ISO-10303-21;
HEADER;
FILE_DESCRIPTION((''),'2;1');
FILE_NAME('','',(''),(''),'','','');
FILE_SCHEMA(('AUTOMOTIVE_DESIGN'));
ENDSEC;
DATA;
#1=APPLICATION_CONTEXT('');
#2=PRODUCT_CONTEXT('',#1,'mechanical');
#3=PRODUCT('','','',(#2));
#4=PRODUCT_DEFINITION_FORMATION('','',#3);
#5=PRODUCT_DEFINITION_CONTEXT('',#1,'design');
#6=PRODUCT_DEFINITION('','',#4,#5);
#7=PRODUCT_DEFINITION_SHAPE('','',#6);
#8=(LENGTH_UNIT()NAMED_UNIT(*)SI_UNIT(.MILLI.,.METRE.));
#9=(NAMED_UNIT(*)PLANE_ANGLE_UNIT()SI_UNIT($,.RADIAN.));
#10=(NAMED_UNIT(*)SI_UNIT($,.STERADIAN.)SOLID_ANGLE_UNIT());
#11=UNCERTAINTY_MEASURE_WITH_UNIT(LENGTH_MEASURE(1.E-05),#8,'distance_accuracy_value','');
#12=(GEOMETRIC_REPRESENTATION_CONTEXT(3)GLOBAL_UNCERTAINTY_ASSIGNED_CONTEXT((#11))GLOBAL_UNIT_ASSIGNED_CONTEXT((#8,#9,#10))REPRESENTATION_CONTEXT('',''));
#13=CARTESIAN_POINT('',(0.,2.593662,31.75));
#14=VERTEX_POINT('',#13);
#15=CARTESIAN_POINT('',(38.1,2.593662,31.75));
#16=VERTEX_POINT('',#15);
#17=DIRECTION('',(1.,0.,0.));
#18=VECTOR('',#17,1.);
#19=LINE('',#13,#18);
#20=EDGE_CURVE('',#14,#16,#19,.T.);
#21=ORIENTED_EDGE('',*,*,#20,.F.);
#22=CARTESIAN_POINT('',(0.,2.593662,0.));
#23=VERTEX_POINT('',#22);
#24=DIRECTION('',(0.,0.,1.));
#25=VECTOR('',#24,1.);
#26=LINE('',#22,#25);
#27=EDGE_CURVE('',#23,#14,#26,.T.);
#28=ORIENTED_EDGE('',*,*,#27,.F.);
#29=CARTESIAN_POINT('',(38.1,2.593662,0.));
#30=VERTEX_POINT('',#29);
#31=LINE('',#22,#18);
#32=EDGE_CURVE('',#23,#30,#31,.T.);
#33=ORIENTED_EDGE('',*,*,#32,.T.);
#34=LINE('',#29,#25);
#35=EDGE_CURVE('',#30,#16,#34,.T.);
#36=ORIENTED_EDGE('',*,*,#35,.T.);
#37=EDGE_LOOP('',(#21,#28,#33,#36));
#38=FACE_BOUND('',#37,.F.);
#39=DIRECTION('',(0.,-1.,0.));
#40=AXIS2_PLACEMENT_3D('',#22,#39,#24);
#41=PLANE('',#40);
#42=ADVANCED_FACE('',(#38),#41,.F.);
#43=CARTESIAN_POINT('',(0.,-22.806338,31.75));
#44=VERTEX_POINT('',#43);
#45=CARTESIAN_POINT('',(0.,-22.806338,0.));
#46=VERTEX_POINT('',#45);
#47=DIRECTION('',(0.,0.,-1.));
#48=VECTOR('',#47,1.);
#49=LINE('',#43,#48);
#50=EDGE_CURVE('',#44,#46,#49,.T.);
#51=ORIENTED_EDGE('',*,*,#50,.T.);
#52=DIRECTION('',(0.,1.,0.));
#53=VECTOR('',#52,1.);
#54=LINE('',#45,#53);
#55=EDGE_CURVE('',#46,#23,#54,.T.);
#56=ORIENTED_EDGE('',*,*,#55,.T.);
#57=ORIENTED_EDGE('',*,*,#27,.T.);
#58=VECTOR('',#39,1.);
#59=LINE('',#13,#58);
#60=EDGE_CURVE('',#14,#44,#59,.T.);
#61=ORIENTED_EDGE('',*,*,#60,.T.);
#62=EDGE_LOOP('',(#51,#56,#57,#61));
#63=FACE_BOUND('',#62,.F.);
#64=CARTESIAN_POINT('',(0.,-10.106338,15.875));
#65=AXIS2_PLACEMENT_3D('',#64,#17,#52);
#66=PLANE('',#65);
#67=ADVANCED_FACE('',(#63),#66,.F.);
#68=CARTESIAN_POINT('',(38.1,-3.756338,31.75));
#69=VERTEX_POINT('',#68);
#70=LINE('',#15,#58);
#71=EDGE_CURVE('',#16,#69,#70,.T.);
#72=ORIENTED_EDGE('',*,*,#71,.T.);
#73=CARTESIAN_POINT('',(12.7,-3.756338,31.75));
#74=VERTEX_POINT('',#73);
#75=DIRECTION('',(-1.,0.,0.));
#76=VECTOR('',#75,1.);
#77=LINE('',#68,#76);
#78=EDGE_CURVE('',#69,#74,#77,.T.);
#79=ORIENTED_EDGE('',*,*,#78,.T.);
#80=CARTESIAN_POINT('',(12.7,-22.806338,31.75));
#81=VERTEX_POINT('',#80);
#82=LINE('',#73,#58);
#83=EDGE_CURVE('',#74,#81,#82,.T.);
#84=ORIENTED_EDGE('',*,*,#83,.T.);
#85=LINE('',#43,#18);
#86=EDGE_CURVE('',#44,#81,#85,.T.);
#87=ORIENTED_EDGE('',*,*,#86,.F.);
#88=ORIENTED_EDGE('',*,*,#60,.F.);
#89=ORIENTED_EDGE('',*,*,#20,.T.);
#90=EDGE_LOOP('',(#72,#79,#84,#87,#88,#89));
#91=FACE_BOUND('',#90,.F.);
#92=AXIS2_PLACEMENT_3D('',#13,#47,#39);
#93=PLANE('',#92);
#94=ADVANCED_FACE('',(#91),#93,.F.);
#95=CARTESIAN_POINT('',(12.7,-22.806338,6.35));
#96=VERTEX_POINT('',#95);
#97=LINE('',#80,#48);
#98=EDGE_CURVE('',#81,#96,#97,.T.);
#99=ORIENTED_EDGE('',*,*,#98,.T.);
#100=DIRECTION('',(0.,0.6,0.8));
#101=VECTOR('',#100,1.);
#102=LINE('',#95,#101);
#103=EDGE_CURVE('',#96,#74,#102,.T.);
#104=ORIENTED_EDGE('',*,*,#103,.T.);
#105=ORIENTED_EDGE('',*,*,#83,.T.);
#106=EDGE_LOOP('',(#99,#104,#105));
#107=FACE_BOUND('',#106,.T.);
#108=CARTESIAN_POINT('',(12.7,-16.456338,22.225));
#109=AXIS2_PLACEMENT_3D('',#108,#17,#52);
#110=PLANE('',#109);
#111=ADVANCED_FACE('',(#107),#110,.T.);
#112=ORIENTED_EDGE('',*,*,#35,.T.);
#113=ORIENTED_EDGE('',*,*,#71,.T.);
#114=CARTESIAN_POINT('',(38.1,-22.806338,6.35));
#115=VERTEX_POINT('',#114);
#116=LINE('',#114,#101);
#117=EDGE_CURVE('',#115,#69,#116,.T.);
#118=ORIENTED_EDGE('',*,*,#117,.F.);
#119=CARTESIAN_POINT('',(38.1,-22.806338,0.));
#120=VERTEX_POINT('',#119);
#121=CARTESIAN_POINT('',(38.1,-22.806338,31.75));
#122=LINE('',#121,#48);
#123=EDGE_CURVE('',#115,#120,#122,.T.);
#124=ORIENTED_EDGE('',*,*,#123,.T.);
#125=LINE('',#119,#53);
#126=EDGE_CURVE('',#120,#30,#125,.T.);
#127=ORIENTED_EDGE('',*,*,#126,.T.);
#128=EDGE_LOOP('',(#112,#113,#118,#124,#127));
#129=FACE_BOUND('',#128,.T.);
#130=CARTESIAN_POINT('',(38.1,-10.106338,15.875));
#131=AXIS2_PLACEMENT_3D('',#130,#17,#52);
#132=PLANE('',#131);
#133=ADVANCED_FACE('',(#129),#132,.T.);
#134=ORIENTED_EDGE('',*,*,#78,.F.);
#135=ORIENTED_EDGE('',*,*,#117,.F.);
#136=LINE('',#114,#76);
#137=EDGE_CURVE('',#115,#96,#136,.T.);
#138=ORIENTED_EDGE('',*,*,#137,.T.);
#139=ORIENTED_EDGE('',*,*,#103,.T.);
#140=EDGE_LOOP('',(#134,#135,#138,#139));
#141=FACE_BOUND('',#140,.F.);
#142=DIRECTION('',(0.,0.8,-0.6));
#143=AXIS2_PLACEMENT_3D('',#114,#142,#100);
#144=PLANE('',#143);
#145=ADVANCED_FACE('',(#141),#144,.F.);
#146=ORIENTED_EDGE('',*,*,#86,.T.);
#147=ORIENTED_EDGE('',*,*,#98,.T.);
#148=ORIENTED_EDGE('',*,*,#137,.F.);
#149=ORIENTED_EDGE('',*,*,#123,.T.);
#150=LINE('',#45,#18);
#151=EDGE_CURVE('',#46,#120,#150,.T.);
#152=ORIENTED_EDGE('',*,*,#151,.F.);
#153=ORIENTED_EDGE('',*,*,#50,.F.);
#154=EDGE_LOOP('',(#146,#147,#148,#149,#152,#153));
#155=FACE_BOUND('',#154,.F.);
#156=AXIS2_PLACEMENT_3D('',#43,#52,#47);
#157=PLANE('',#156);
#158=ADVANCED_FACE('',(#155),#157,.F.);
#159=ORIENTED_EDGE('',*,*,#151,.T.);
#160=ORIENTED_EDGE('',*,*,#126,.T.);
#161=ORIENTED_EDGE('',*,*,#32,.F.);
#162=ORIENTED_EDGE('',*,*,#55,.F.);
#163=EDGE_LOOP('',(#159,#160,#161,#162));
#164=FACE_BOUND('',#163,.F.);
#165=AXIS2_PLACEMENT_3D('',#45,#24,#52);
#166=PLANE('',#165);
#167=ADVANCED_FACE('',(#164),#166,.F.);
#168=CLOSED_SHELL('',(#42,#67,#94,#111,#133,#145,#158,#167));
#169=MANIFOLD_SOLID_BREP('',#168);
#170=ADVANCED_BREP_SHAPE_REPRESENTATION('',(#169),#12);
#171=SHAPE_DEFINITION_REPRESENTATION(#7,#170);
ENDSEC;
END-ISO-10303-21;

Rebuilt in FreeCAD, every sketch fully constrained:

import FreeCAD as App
import Part
import Sketcher
Q = App.Units.Quantity

doc = App.newDocument("Part")
body = doc.addObject("PartDesign::Body", "Body")

sketch1 = doc.addObject("Sketcher::SketchObject", "Sketch")
body.addObject(sketch1)
sketch1.AttachmentSupport = (doc.YZ_Plane, [""])
sketch1.MapMode = "FlatFace"
sketch1.addGeometry([
    Part.LineSegment(App.Vector(-23, 0, 0), App.Vector(3, 0, 0)),
    Part.LineSegment(App.Vector(3, 0, 0), App.Vector(3, 32, 0)),
    Part.LineSegment(App.Vector(3, 32, 0), App.Vector(-23, 32, 0)),
    Part.LineSegment(App.Vector(-23, 32, 0), App.Vector(-23, 0, 0)),
], False)
sketch1.addConstraint([
    Sketcher.Constraint("Coincident", 0, 2, 1, 1),
    Sketcher.Constraint("Coincident", 1, 2, 2, 1),
    Sketcher.Constraint("Coincident", 2, 2, 3, 1),
    Sketcher.Constraint("Coincident", 3, 2, 0, 1),
    Sketcher.Constraint("Horizontal", 0),
    Sketcher.Constraint("Vertical", 1),
    Sketcher.Constraint("Horizontal", 2),
    Sketcher.Constraint("Vertical", 3),
    Sketcher.Constraint("PointOnObject", 0, 2, -1),
    Sketcher.Constraint("DistanceX", 0, 1, 0, 2, Q("1 in")),
    Sketcher.Constraint("DistanceY", 1, 1, 1, 2, Q("1.25 in")),
    Sketcher.Constraint("DistanceX", 2, 2, -1, 1, 22.806338),
])
pad1 = doc.addObject("PartDesign::Pad", "Pad")
body.addObject(pad1)
pad1.Profile = sketch1
pad1.Length = Q("1.5 in")

sketch2 = doc.addObject("Sketcher::SketchObject", "Sketch001")
body.addObject(sketch2)
sketch2.AttachmentSupport = (doc.YZ_Plane, [""])
sketch2.MapMode = "FlatFace"
sketch2.AttachmentOffset = App.Placement(App.Vector(0, 0, 1.5 * 25.4), App.Rotation())
sketch2.addGeometry([
    Part.LineSegment(App.Vector(-4, 32, 0), App.Vector(-23, 32, 0)),
    Part.LineSegment(App.Vector(-23, 32, 0), App.Vector(-23, 6, 0)),
    Part.LineSegment(App.Vector(-23, 6, 0), App.Vector(-4, 32, 0)),
], False)
sketch2.addConstraint([
    Sketcher.Constraint("Coincident", 0, 2, 1, 1),
    Sketcher.Constraint("Coincident", 1, 2, 2, 1),
    Sketcher.Constraint("Coincident", 2, 2, 0, 1),
    Sketcher.Constraint("Horizontal", 0),
    Sketcher.Constraint("Vertical", 1),
    Sketcher.Constraint("DistanceY", 1, 2, 1, 1, Q("1 in")),
    Sketcher.Constraint("DistanceX", 0, 2, 0, 1, Q("0.75 in")),
    Sketcher.Constraint("DistanceY", -1, 1, 0, 2, Q("1.25 in")),
    Sketcher.Constraint("DistanceX", 0, 2, -1, 1, 22.806338),
])
pocket1 = doc.addObject("PartDesign::Pocket", "Pocket")
body.addObject(pocket1)
pocket1.Profile = sketch2
pocket1.Length = Q("1 in")

doc.recompute()
